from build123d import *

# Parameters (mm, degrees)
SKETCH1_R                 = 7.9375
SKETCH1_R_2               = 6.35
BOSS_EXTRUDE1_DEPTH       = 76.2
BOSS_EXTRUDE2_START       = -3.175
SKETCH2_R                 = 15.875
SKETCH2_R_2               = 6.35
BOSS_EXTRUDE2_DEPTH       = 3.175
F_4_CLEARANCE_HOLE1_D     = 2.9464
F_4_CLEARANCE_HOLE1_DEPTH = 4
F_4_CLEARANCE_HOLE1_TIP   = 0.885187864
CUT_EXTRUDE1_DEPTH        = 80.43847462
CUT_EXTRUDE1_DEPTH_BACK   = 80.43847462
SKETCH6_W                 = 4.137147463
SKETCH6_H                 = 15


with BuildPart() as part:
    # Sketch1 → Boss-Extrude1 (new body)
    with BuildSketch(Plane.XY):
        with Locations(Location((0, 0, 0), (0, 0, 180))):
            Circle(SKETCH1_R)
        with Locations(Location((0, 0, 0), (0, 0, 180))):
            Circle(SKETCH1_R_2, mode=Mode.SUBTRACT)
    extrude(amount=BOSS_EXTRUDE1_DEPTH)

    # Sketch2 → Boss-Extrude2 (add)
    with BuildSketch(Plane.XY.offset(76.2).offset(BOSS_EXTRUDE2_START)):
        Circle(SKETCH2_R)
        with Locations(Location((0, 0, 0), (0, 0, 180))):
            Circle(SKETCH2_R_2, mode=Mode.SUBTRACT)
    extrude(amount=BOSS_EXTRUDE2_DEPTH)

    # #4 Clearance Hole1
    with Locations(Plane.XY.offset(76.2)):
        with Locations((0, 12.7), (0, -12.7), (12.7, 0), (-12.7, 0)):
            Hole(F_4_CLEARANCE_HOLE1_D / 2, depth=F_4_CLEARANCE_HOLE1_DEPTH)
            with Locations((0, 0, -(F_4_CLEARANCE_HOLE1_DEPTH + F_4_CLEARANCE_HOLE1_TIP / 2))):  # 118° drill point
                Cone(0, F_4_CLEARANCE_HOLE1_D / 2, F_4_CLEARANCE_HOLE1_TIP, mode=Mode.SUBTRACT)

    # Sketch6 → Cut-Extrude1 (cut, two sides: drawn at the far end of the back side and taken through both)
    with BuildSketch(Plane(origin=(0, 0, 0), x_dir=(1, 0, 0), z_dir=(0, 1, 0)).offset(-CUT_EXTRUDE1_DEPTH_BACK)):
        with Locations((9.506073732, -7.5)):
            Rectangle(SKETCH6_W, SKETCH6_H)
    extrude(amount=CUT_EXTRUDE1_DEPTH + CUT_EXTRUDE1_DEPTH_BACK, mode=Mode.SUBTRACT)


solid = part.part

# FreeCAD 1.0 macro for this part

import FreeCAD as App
import Part
import Sketcher
Q = App.Units.Quantity

doc = App.newDocument("Part")
body = doc.addObject("PartDesign::Body", "Body")

sketch1 = body.newObject("Sketcher::SketchObject", "Sketch")
sketch1.AttachmentSupport = (doc.getObject("XY_Plane"), [""])
sketch1.MapMode = "FlatFace"
sketch1.addGeometry([
    Part.Circle(App.Vector(0, 0, 0), App.Vector(0, 0, 1), 7.9375),
    Part.Circle(App.Vector(0, 0, 0), App.Vector(0, 0, 1), 6.35),
], False)
sketch1.addConstraint([
    Sketcher.Constraint("Coincident", 0, 3, -1, 1),
    Sketcher.Constraint("Coincident", 1, 3, -1, 1),
    Sketcher.Constraint("Diameter", 1, Q("0.5 in")),
    Sketcher.Constraint("Diameter", 0, Q("0.625 in")),
])
pad1 = body.newObject("PartDesign::Pad", "Pad")
pad1.Profile = sketch1
pad1.Length = Q("3 in")

sketch2 = body.newObject("Sketcher::SketchObject", "Sketch001")
sketch2.AttachmentSupport = (doc.getObject("XY_Plane"), [""])
sketch2.MapMode = "FlatFace"
sketch2.AttachmentOffset = App.Placement(App.Vector(0, 0, 2.875 * 25.4), App.Rotation())
sketch2.addGeometry([
    Part.Circle(App.Vector(0, 0, 0), App.Vector(0, 0, 1), 15.875),
    Part.Circle(App.Vector(0, 0, 0), App.Vector(0, 0, 1), 6.35),
], False)
sketch2.addConstraint([
    Sketcher.Constraint("Coincident", 0, 3, -1, 1),
    Sketcher.Constraint("Coincident", 1, 3, -1, 1),
    Sketcher.Constraint("Diameter", 1, Q("0.5 in")),
    Sketcher.Constraint("Diameter", 0, Q("1.25 in")),
])
pad2 = body.newObject("PartDesign::Pad", "Pad001")
pad2.Profile = sketch2
pad2.Length = Q("0.125 in")

sketch3 = body.newObject("Sketcher::SketchObject", "Sketch002")
sketch3.AttachmentSupport = (doc.getObject("XY_Plane"), [""])
sketch3.MapMode = "FlatFace"
sketch3.AttachmentOffset = App.Placement(App.Vector(0, 0, 3 * 25.4), App.Rotation())
sketch3.addGeometry([
    Part.Circle(App.Vector(0, 12.7, 0), App.Vector(0, 0, 1), 1.4732),
    Part.Circle(App.Vector(0, -12.7, 0), App.Vector(0, 0, 1), 1.4732),
    Part.Circle(App.Vector(12.7, 0, 0), App.Vector(0, 0, 1), 1.4732),
    Part.Circle(App.Vector(-12.7, 0, 0), App.Vector(0, 0, 1), 1.4732),
], False)
sketch3.addConstraint([
    Sketcher.Constraint("Equal", 0, 1),
    Sketcher.Constraint("Equal", 1, 2),
    Sketcher.Constraint("Equal", 2, 3),
    Sketcher.Constraint("Symmetric", 0, 3, 1, 3, -1, 1),
    Sketcher.Constraint("Symmetric", 2, 3, 3, 3, -1, 1),
    Sketcher.Constraint("PointOnObject", 0, 3, -2),
    Sketcher.Constraint("PointOnObject", 2, 3, -1),
    Sketcher.Constraint("Diameter", 0, Q("0.116 in")),
    Sketcher.Constraint("DistanceY", 1, 3, 0, 3, Q("1 in")),
    Sketcher.Constraint("DistanceX", 3, 3, 2, 3, Q("1 in")),
])
doc.recompute()
hole = body.newObject("PartDesign::Hole", "Hole")
hole.Profile = sketch3
hole.ThreadType = "None"
hole.Diameter = Q("0.116 in")
hole.DepthType = "Dimension"
hole.Depth = 4
hole.DrillPoint = "Angled"
hole.DrillPointAngle = 118

sketch4 = body.newObject("Sketcher::SketchObject", "Sketch003")
sketch4.AttachmentSupport = (doc.getObject("XZ_Plane"), [""])
sketch4.MapMode = "FlatFace"
sketch4.addGeometry([
    Part.LineSegment(App.Vector(7.4375, 0, 0), App.Vector(7.4375, 15, 0)),
    Part.LineSegment(App.Vector(7.4375, 15, 0), App.Vector(11.574647, 15, 0)),
    Part.LineSegment(App.Vector(11.574647, 15, 0), App.Vector(11.574647, 0, 0)),
    Part.LineSegment(App.Vector(11.574647, 0, 0), App.Vector(7.4375, 0, 0)),
], False)
sketch4.addConstraint([
    Sketcher.Constraint("Coincident", 0, 2, 1, 1),
    Sketcher.Constraint("Coincident", 1, 2, 2, 1),
    Sketcher.Constraint("Coincident", 2, 2, 3, 1),
    Sketcher.Constraint("Coincident", 3, 2, 0, 1),
    Sketcher.Constraint("Vertical", 0),
    Sketcher.Constraint("Horizontal", 1),
    Sketcher.Constraint("Vertical", 2),
    Sketcher.Constraint("Horizontal", 3),
    Sketcher.Constraint("PointOnObject", 2, 2, -1),
    Sketcher.Constraint("DistanceY", 0, 1, 0, 2, 15.0),
    Sketcher.Constraint("DistanceX", -1, 1, 0, 2, 7.4375),
    Sketcher.Constraint("DistanceX", 1, 1, 1, 2, 4.137147),
])
pocket1 = body.newObject("PartDesign::Pocket", "Pocket")
pocket1.Profile = sketch4
pocket1.Type = "ThroughAll"
pocket1.Midplane = True

doc.recompute()
